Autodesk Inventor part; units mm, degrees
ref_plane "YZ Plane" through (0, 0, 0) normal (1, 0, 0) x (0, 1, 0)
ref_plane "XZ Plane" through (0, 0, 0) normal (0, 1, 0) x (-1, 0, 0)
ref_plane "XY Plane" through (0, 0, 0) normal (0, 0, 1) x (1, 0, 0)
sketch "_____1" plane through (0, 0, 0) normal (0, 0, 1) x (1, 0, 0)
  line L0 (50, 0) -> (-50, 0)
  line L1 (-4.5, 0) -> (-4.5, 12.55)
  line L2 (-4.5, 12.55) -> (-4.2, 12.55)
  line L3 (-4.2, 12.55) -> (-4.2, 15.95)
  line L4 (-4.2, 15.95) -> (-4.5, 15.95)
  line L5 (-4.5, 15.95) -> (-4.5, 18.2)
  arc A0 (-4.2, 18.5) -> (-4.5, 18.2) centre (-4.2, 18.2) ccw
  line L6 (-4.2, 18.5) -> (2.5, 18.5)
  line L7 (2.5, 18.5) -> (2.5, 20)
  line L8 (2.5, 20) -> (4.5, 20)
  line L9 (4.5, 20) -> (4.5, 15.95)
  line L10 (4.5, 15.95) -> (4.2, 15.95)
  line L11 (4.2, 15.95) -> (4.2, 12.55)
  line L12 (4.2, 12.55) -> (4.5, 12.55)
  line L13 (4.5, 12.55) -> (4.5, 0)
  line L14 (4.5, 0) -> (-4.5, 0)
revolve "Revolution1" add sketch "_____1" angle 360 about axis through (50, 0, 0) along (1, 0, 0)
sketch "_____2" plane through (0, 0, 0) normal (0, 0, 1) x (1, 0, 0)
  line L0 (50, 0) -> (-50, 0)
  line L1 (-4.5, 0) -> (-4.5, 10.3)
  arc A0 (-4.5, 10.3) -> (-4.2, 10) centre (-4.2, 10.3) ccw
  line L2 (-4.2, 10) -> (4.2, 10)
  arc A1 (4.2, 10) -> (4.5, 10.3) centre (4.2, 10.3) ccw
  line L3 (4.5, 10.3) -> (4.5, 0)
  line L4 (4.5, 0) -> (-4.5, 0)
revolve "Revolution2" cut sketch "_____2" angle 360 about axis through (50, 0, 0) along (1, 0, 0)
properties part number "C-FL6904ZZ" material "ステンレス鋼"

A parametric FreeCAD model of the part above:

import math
import FreeCAD as App
import Part
import Sketcher

V = App.Vector

doc = App.newDocument("Part")
params = doc.addObject("Spreadsheet::Sheet", "Params")
for row, (alias, value) in enumerate([
    ("sketch1_radius", "0.3 mm"),
    ("sketch1_width", "9 mm"),
    ("sketch1_width2", "2 mm"),
    ("sketch1_height", "3.4 mm"),
    ("sketch1_height2", "1.5 mm"),
    ("revolution_angle", "360 deg"),
    ("sketch2_radius", "0.3 mm"),
    ("sketch2_width", "9 mm"),
    ("sketch2_height", "10.3 mm"),
    ("groove_angle", "360 deg"),
], start=1):
    params.set(f"A{row}", alias)
    params.set(f"B{row}", "=" + value)
    params.setAlias(f"B{row}", alias)

body = doc.addObject("PartDesign::Body", "Body")

sketch1 = body.newObject("Sketcher::SketchObject", "Sketch")
sketch1.AttachmentSupport = (doc.getObject("XY_Plane"), [""])
sketch1.MapMode = "FlatFace"
sketch1.addGeometry(Part.LineSegment(V(-4.5, 0, 0), V(4.5, 0, 0)), False)
sketch1.addGeometry(Part.LineSegment(V(4.5, 0, 0), V(4.5, 12.55, 0)), False)
sketch1.addGeometry(Part.LineSegment(V(4.5, 12.55, 0), V(4.2, 12.55, 0)), False)
sketch1.addGeometry(Part.LineSegment(V(4.2, 12.55, 0), V(4.2, 15.95, 0)), False)
sketch1.addGeometry(Part.LineSegment(V(4.2, 15.95, 0), V(4.5, 15.95, 0)), False)
sketch1.addGeometry(Part.LineSegment(V(4.5, 15.95, 0), V(4.5, 20, 0)), False)
sketch1.addGeometry(Part.LineSegment(V(4.5, 20, 0), V(2.5, 20, 0)), False)
sketch1.addGeometry(Part.LineSegment(V(2.5, 20, 0), V(2.5, 18.5, 0)), False)
sketch1.addGeometry(Part.LineSegment(V(2.5, 18.5, 0), V(-4.2, 18.5, 0)), False)
sketch1.addGeometry(Part.ArcOfCircle(Part.Circle(V(-4.2, 18.2, 0), V(0, 0, 1), 0.3), math.radians(90), math.radians(180)), False)
sketch1.addGeometry(Part.LineSegment(V(-4.5, 18.2, 0), V(-4.5, 15.95, 0)), False)
sketch1.addGeometry(Part.LineSegment(V(-4.5, 15.95, 0), V(-4.2, 15.95, 0)), False)
sketch1.addGeometry(Part.LineSegment(V(-4.2, 15.95, 0), V(-4.2, 12.55, 0)), False)
sketch1.addGeometry(Part.LineSegment(V(-4.2, 12.55, 0), V(-4.5, 12.55, 0)), False)
sketch1.addGeometry(Part.LineSegment(V(-4.5, 12.55, 0), V(-4.5, 0, 0)), False)
sketch1.addConstraint(Sketcher.Constraint("Coincident", 0, 2, 1, 1))
sketch1.addConstraint(Sketcher.Constraint("Coincident", 1, 2, 2, 1))
sketch1.addConstraint(Sketcher.Constraint("Coincident", 2, 2, 3, 1))
sketch1.addConstraint(Sketcher.Constraint("Coincident", 3, 2, 4, 1))
sketch1.addConstraint(Sketcher.Constraint("Coincident", 4, 2, 5, 1))
sketch1.addConstraint(Sketcher.Constraint("Coincident", 5, 2, 6, 1))
sketch1.addConstraint(Sketcher.Constraint("Coincident", 6, 2, 7, 1))
sketch1.addConstraint(Sketcher.Constraint("Coincident", 7, 2, 8, 1))
sketch1.addConstraint(Sketcher.Constraint("Tangent", 8, 2, 9, 1))
sketch1.addConstraint(Sketcher.Constraint("Tangent", 9, 2, 10, 1))
sketch1.addConstraint(Sketcher.Constraint("Coincident", 10, 2, 11, 1))
sketch1.addConstraint(Sketcher.Constraint("Coincident", 11, 2, 12, 1))
sketch1.addConstraint(Sketcher.Constraint("Coincident", 12, 2, 13, 1))
sketch1.addConstraint(Sketcher.Constraint("Coincident", 13, 2, 14, 1))
sketch1.addConstraint(Sketcher.Constraint("Coincident", 14, 2, 0, 1))
sketch1.addConstraint(Sketcher.Constraint("Horizontal", 0))
sketch1.addConstraint(Sketcher.Constraint("Vertical", 1))
sketch1.addConstraint(Sketcher.Constraint("Horizontal", 2))
sketch1.addConstraint(Sketcher.Constraint("Vertical", 3))
sketch1.addConstraint(Sketcher.Constraint("Horizontal", 4))
sketch1.addConstraint(Sketcher.Constraint("Vertical", 5))
sketch1.addConstraint(Sketcher.Constraint("Horizontal", 6))
sketch1.addConstraint(Sketcher.Constraint("Vertical", 7))
sketch1.addConstraint(Sketcher.Constraint("Horizontal", 8))
sketch1.addConstraint(Sketcher.Constraint("Vertical", 10))
sketch1.addConstraint(Sketcher.Constraint("Horizontal", 11))
sketch1.addConstraint(Sketcher.Constraint("Vertical", 12))
sketch1.addConstraint(Sketcher.Constraint("Horizontal", 13))
sketch1.addConstraint(Sketcher.Constraint("Vertical", 14))
sketch1.addConstraint(Sketcher.Constraint("Symmetric", 0, 2, 14, 2, -1, 1))
sketch1.addConstraint(Sketcher.Constraint("Symmetric", 4, 2, 10, 2, -2))
sketch1.addConstraint(Sketcher.Constraint("Symmetric", 2, 2, 12, 2, -2))
sketch1.addConstraint(Sketcher.Constraint("Vertical", 1, 2, 4, 2))
sketch1.addConstraint(Sketcher.Constraint("Vertical", 8, 2, 11, 2))
sketch1.addConstraint(Sketcher.Constraint("Radius", 9, 0.3))
sketch1.addConstraint(Sketcher.Constraint("DistanceX", 0, 1, 0, 2, 9.0))
sketch1.addConstraint(Sketcher.Constraint("DistanceX", 6, 2, 6, 1, 2.0))
sketch1.addConstraint(Sketcher.Constraint("DistanceY", 3, 1, 3, 2, 3.4))
sketch1.addConstraint(Sketcher.Constraint("DistanceY", 7, 2, 7, 1, 1.5))
sketch1.addConstraint(Sketcher.Constraint("DistanceY", -1, 1, 5, 2, 20.0))
sketch1.addConstraint(Sketcher.Constraint("DistanceY", 1, 1, 1, 2, 12.55))
sketch1.setExpression("Constraints[34]", "Params.sketch1_radius")
sketch1.setExpression("Constraints[35]", "Params.sketch1_width")
sketch1.setExpression("Constraints[36]", "Params.sketch1_width2")
sketch1.setExpression("Constraints[37]", "Params.sketch1_height")
sketch1.setExpression("Constraints[38]", "Params.sketch1_height2")
revolution = body.newObject("PartDesign::Revolution", "Revolution")
revolution.Profile = sketch1
revolution.ReferenceAxis = (sketch1, ["H_Axis"])
revolution.setExpression("Angle", "Params.revolution_angle")

sketch2 = body.newObject("Sketcher::SketchObject", "Sketch001")
sketch2.AttachmentSupport = (doc.getObject("XY_Plane"), [""])
sketch2.MapMode = "FlatFace"
sketch2.addGeometry(Part.LineSegment(V(-4.5, 0, 0), V(4.5, 0, 0)), False)
sketch2.addGeometry(Part.LineSegment(V(4.5, 0, 0), V(4.5, 10.3, 0)), False)
sketch2.addGeometry(Part.ArcOfCircle(Part.Circle(V(4.2, 10.3, 0), V(0, 0, 1), 0.3), math.radians(-90), math.radians(0)), False)
sketch2.addGeometry(Part.LineSegment(V(4.2, 10, 0), V(-4.2, 10, 0)), False)
sketch2.addGeometry(Part.ArcOfCircle(Part.Circle(V(-4.2, 10.3, 0), V(0, 0, 1), 0.3), math.radians(180), math.radians(270)), False)
sketch2.addGeometry(Part.LineSegment(V(-4.5, 10.3, 0), V(-4.5, 0, 0)), False)
sketch2.addConstraint(Sketcher.Constraint("Coincident", 0, 2, 1, 1))
sketch2.addConstraint(Sketcher.Constraint("Tangent", 1, 2, 2, 2))
sketch2.addConstraint(Sketcher.Constraint("Tangent", 2, 1, 3, 1))
sketch2.addConstraint(Sketcher.Constraint("Tangent", 3, 2, 4, 2))
sketch2.addConstraint(Sketcher.Constraint("Tangent", 4, 1, 5, 1))
sketch2.addConstraint(Sketcher.Constraint("Coincident", 5, 2, 0, 1))
sketch2.addConstraint(Sketcher.Constraint("Horizontal", 0))
sketch2.addConstraint(Sketcher.Constraint("Vertical", 1))
sketch2.addConstraint(Sketcher.Constraint("Horizontal", 3))
sketch2.addConstraint(Sketcher.Constraint("Vertical", 5))
sketch2.addConstraint(Sketcher.Constraint("Equal", 2, 4))
sketch2.addConstraint(Sketcher.Constraint("Symmetric", 0, 2, 5, 2, -1, 1))
sketch2.addConstraint(Sketcher.Constraint("Radius", 2, 0.3))
sketch2.addConstraint(Sketcher.Constraint("DistanceX", 0, 1, 0, 2, 9.0))
sketch2.addConstraint(Sketcher.Constraint("DistanceY", 1, 1, 1, 2, 10.3))
sketch2.setExpression("Constraints[12]", "Params.sketch2_radius")
sketch2.setExpression("Constraints[13]", "Params.sketch2_width")
sketch2.setExpression("Constraints[14]", "Params.sketch2_height")
groove = body.newObject("PartDesign::Groove", "Groove")
groove.Profile = sketch2
groove.ReferenceAxis = (sketch2, ["H_Axis"])
groove.setExpression("Angle", "Params.groove_angle")

doc.recompute()
